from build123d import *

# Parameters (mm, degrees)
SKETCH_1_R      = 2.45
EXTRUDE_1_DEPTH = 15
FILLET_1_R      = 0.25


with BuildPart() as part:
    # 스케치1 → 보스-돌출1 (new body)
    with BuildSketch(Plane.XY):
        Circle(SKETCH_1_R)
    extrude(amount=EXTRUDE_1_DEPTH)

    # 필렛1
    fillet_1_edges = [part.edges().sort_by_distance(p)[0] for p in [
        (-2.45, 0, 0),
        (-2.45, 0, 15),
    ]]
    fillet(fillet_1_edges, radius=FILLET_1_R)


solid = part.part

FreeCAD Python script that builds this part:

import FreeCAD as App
import Part
import Sketcher

V = App.Vector
Q = App.Units.Quantity


def edges_at(feature, points):
    """Names of the edges that pass closest to the given points."""
    edges = feature.Shape.Edges
    near = lambda p: min(range(len(edges)), key=lambda i: edges[i].distToShape(Part.Vertex(*p))[0])
    return sorted({f"Edge{near(p) + 1}" for p in points})

doc = App.newDocument("Part")
body = doc.addObject("PartDesign::Body", "Body")

# Sketch on XY plane
sketch1 = body.newObject("Sketcher::SketchObject", "Sketch")
sketch1.AttachmentSupport = (doc.getObject("XY_Plane"), [""])
sketch1.MapMode = "FlatFace"
sketch1.addGeometry(Part.Circle(V(0, 0, 0), V(0, 0, 1), 2.5), False)
sketch1.addConstraint(Sketcher.Constraint("Coincident", 0, 3, -1, 1))
sketch1.addConstraint(Sketcher.Constraint("Diameter", 0, Q("4.9 mm")))
pad1 = body.newObject("PartDesign::Pad", "Pad")
pad1.Profile = sketch1
pad1.Length = 15
doc.recompute()

fillet = body.newObject("PartDesign::Fillet", "Fillet")
fillet.Base = (pad1, edges_at(pad1, [(-2.45, 0, 0), (-2.45, 0, 15)]))
fillet.Radius = 0.25

doc.recompute()
